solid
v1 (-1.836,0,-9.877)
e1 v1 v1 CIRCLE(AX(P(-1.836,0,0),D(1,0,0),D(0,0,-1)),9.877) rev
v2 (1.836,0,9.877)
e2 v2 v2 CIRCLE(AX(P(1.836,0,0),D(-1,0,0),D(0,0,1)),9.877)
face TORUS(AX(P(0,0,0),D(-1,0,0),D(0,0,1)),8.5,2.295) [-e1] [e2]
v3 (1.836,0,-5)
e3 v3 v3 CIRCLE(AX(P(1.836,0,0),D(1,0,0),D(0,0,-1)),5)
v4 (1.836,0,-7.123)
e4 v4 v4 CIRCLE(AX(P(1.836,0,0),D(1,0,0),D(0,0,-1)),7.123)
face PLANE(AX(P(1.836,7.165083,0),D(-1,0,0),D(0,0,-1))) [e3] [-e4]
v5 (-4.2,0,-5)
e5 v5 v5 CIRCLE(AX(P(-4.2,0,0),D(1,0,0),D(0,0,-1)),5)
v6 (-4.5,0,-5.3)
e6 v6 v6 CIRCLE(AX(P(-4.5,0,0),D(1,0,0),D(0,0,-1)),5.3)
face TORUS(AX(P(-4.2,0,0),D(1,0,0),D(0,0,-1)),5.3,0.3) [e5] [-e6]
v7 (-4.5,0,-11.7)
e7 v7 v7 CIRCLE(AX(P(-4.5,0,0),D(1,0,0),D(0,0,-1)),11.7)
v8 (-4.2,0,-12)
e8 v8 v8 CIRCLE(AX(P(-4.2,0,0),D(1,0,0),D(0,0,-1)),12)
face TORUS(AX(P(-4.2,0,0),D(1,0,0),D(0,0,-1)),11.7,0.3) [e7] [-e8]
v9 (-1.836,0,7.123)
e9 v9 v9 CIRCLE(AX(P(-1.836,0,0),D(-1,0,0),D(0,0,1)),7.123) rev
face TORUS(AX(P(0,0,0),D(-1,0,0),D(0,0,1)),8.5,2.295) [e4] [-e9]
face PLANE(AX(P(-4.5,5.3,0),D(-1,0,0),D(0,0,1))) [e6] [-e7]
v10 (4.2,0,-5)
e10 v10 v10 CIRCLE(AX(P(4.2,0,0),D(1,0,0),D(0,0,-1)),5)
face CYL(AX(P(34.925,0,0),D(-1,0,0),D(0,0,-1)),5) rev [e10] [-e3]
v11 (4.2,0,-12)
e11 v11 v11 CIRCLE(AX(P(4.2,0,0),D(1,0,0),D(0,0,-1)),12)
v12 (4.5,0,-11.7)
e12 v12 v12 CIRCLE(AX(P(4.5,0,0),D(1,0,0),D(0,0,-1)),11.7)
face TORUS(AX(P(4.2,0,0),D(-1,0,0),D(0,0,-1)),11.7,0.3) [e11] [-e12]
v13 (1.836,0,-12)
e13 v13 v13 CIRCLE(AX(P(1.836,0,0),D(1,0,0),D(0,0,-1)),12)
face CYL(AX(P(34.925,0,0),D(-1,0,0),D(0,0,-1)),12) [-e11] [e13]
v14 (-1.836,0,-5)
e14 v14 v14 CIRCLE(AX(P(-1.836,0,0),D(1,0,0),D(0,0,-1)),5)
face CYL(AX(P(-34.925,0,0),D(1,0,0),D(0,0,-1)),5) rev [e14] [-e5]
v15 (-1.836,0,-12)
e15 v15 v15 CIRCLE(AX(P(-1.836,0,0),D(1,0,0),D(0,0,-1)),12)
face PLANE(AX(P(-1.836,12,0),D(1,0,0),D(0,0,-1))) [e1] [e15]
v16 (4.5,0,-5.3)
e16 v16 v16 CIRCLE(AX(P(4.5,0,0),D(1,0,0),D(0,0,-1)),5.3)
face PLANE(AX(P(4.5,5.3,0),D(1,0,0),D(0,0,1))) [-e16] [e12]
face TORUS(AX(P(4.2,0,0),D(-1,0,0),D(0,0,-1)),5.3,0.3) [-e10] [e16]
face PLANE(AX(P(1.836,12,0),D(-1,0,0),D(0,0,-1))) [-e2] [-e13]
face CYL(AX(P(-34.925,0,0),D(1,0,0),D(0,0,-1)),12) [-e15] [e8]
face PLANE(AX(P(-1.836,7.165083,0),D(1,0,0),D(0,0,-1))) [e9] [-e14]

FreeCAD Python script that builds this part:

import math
import FreeCAD as App
import Part
import Sketcher

V = App.Vector

doc = App.newDocument("Part")
body = doc.addObject("PartDesign::Body", "Body")

sketch1 = doc.addObject("Sketcher::SketchObject", "Sketch")
body.addObject(sketch1)
sketch1.AttachmentSupport = (doc.XY_Plane, [""])
sketch1.MapMode = "FlatFace"
sketch1.addGeometry([
    Part.LineSegment(V(-1.84, 5, 0), V(-1.84, 7.17, 0)),
    Part.ArcOfCircle(Part.Circle(V(0, 8.5, 0), V(0, 0, 1), 2.27), math.radians(144), math.radians(216)),
    Part.LineSegment(V(-1.84, 9.83, 0), V(-1.84, 12, 0)),
    Part.LineSegment(V(-1.84, 12, 0), V(-4.2, 12, 0)),
    Part.ArcOfCircle(Part.Circle(V(-4.2, 11.7, 0), V(0, 0, 1), 0.3), math.radians(90), math.radians(180)),
    Part.LineSegment(V(-4.5, 11.7, 0), V(-4.5, 5.3, 0)),
    Part.ArcOfCircle(Part.Circle(V(-4.2, 5.3, 0), V(0, 0, 1), 0.3), math.radians(-180), math.radians(-90)),
    Part.LineSegment(V(-4.2, 5, 0), V(-1.84, 5, 0)),
], False)
sketch1.addConstraint([
    Sketcher.Constraint("Coincident", 0, 2, 1, 2),
    Sketcher.Constraint("Coincident", 1, 1, 2, 1),
    Sketcher.Constraint("Coincident", 2, 2, 3, 1),
    Sketcher.Constraint("Tangent", 3, 2, 4, 1),
    Sketcher.Constraint("Tangent", 4, 2, 5, 1),
    Sketcher.Constraint("Tangent", 5, 2, 6, 1),
    Sketcher.Constraint("Tangent", 6, 2, 7, 1),
    Sketcher.Constraint("Coincident", 7, 2, 0, 1),
    Sketcher.Constraint("Vertical", 0),
    Sketcher.Constraint("Vertical", 2),
    Sketcher.Constraint("Horizontal", 3),
    Sketcher.Constraint("Vertical", 5),
    Sketcher.Constraint("Horizontal", 7),
    Sketcher.Constraint("Equal", 4, 6),
    Sketcher.Constraint("PointOnObject", 1, 3, -2),
    Sketcher.Constraint("Vertical", 0, 2, 1, 1),
    Sketcher.Constraint("Equal", 0, 2),
    Sketcher.Constraint("Radius", 4, 0.3),
    Sketcher.Constraint("Radius", 1, 2.27),
    Sketcher.Constraint("DistanceY", 5, 2, 5, 1, 6.4),
    Sketcher.Constraint("DistanceY", -1, 1, 2, 2, 12.0),
    Sketcher.Constraint("DistanceX", 4, 3, -1, 1, 4.2),
    Sketcher.Constraint("DistanceX", 3, 2, 3, 1, 2.364),
])
revolution = doc.addObject("PartDesign::Revolution", "Revolution")
body.addObject(revolution)
revolution.Profile = sketch1
revolution.ReferenceAxis = (sketch1, ["H_Axis"])
revolution.Angle = 360

sketch2 = doc.addObject("Sketcher::SketchObject", "Sketch001")
body.addObject(sketch2)
sketch2.AttachmentSupport = (doc.XY_Plane, [""])
sketch2.MapMode = "FlatFace"
sketch2.addGeometry(Part.Circle(V(0, 8.5, 0), V(0, 0, 1), 2.3), False)
sketch2.addConstraint([
    Sketcher.Constraint("PointOnObject", 0, 3, -2),
    Sketcher.Constraint("Diameter", 0, 4.59),
    Sketcher.Constraint("DistanceY", -1, 1, 0, 3, 8.5),
])
revolution2 = doc.addObject("PartDesign::Revolution", "Revolution001")
body.addObject(revolution2)
revolution2.Profile = sketch2
revolution2.ReferenceAxis = (sketch2, ["H_Axis"])
revolution2.Angle = 360
doc.recompute()

mirrored = doc.addObject("PartDesign::Mirrored", "Mirrored")
body.addObject(mirrored)
mirrored.Originals = [revolution]
mirrored.MirrorPlane = (doc.YZ_Plane, [""])
body.Tip = mirrored

doc.recompute()
